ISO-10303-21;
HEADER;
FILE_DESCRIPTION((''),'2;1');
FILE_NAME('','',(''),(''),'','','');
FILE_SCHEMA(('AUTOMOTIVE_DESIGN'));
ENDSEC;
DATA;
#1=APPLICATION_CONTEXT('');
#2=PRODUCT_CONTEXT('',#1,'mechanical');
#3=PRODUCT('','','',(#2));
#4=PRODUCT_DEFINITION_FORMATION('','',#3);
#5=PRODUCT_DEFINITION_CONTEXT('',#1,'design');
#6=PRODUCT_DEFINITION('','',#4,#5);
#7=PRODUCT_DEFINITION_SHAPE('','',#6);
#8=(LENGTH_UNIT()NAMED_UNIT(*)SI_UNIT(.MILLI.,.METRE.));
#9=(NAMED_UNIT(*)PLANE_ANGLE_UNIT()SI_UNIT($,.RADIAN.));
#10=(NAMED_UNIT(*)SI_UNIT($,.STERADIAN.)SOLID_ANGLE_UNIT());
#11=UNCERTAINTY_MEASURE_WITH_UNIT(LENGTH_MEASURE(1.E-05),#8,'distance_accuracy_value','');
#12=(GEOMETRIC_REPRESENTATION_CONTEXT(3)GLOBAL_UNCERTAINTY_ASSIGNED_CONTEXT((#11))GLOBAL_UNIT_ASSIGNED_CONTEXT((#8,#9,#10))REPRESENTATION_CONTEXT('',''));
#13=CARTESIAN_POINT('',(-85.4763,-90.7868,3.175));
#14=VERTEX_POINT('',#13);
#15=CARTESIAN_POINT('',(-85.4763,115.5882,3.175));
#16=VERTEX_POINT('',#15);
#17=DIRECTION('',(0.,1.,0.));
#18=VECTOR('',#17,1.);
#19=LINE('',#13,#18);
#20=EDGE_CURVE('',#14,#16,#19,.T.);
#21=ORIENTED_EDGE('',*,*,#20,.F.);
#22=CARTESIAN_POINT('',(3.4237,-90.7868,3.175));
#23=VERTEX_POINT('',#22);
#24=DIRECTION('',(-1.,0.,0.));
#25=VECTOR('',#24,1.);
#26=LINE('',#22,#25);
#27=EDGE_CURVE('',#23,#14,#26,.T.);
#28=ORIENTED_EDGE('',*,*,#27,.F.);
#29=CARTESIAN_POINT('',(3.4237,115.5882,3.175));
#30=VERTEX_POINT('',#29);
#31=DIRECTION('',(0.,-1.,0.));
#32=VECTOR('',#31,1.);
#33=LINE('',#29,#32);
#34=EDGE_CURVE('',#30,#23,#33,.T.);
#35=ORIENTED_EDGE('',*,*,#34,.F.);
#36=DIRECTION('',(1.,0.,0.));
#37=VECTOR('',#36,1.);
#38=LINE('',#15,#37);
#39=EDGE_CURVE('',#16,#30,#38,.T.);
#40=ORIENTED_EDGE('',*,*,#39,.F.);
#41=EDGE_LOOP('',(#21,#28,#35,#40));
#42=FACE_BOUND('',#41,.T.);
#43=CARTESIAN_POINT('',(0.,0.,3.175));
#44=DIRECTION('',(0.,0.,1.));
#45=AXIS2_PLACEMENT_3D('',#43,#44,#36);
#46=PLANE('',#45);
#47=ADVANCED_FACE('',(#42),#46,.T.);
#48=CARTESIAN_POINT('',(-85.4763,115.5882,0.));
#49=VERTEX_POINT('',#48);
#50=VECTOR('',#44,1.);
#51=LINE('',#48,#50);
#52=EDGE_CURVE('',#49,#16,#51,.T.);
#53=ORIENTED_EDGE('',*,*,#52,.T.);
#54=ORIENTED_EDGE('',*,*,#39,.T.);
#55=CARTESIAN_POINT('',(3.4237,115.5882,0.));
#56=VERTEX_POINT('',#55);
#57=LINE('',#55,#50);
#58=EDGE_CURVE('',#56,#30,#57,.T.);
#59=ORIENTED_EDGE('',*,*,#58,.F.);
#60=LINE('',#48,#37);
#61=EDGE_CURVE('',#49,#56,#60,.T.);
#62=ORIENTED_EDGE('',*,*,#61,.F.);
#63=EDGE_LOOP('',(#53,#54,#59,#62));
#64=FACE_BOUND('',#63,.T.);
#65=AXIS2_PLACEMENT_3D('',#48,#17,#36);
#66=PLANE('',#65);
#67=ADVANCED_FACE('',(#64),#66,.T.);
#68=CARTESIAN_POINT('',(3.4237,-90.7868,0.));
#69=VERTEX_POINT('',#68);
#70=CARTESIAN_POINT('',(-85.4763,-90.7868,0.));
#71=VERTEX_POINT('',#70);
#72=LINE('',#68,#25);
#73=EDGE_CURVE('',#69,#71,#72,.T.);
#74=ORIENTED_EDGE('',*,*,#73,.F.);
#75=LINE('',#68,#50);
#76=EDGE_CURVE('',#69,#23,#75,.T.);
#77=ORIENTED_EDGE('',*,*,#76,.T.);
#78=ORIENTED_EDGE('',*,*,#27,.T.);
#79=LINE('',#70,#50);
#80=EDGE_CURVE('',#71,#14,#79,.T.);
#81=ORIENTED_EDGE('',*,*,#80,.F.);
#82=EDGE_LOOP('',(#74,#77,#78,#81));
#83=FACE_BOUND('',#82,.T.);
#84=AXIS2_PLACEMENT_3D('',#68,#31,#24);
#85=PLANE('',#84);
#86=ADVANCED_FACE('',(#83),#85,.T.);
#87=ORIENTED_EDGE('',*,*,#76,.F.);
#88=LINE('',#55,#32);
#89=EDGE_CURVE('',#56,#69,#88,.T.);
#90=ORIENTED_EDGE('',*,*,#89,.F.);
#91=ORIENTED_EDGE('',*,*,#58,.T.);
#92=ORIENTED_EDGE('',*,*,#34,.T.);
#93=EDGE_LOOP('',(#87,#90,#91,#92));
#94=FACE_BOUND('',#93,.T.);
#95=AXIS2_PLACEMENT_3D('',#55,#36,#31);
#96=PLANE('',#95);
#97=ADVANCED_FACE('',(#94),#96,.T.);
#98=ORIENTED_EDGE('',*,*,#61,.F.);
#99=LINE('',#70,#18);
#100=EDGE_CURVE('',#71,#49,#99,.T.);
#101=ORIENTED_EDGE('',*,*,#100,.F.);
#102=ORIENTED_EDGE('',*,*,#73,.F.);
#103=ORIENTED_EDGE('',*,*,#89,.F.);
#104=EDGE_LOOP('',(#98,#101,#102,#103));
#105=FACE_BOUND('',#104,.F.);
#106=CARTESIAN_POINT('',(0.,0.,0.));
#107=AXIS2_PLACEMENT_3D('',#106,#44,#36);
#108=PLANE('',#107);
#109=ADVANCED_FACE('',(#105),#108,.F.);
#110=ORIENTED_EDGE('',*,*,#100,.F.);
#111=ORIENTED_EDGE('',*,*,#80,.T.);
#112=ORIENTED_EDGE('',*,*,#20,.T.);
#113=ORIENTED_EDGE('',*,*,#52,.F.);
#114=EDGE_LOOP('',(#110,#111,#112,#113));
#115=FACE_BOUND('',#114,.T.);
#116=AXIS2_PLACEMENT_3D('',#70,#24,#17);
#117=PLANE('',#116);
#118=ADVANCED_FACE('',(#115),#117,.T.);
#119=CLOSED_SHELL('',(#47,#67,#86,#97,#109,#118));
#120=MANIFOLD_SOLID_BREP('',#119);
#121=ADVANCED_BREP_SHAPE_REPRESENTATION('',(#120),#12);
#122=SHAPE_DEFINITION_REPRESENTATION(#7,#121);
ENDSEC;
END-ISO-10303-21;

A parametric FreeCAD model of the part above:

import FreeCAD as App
import Part
import Sketcher

V = App.Vector
Q = App.Units.Quantity

doc = App.newDocument("Part")
body = doc.addObject("PartDesign::Body", "Body")

# Sketch on XY plane
sketch1 = body.newObject("Sketcher::SketchObject", "Sketch")
sketch1.AttachmentSupport = (doc.getObject("XY_Plane"), [""])
sketch1.MapMode = "FlatFace"
sketch1.addGeometry(Part.LineSegment(V(3, 116, 0), V(-85, 116, 0)), False)
sketch1.addGeometry(Part.LineSegment(V(-85, 116, 0), V(-85, -91, 0)), False)
sketch1.addGeometry(Part.LineSegment(V(-85, -91, 0), V(3, -91, 0)), False)
sketch1.addGeometry(Part.LineSegment(V(3, -91, 0), V(3, 116, 0)), False)
sketch1.addConstraint(Sketcher.Constraint("Coincident", 0, 2, 1, 1))
sketch1.addConstraint(Sketcher.Constraint("Coincident", 1, 2, 2, 1))
sketch1.addConstraint(Sketcher.Constraint("Coincident", 2, 2, 3, 1))
sketch1.addConstraint(Sketcher.Constraint("Coincident", 3, 2, 0, 1))
sketch1.addConstraint(Sketcher.Constraint("Horizontal", 0))
sketch1.addConstraint(Sketcher.Constraint("Vertical", 1))
sketch1.addConstraint(Sketcher.Constraint("Horizontal", 2))
sketch1.addConstraint(Sketcher.Constraint("Vertical", 3))
sketch1.addConstraint(Sketcher.Constraint("DistanceX", 0, 2, 0, 1, Q("3.5 in")))
sketch1.addConstraint(Sketcher.Constraint("DistanceY", 1, 2, 1, 1, Q("8.125 in")))
sketch1.addConstraint(Sketcher.Constraint("DistanceX", 0, 2, -1, 1, Q("3.3652 in")))
sketch1.addConstraint(Sketcher.Constraint("DistanceY", -1, 1, 0, 2, Q("115.5882 mm")))
pad1 = body.newObject("PartDesign::Pad", "Pad")
pad1.Profile = sketch1
pad1.Length = Q("0.125 in")

doc.recompute()
